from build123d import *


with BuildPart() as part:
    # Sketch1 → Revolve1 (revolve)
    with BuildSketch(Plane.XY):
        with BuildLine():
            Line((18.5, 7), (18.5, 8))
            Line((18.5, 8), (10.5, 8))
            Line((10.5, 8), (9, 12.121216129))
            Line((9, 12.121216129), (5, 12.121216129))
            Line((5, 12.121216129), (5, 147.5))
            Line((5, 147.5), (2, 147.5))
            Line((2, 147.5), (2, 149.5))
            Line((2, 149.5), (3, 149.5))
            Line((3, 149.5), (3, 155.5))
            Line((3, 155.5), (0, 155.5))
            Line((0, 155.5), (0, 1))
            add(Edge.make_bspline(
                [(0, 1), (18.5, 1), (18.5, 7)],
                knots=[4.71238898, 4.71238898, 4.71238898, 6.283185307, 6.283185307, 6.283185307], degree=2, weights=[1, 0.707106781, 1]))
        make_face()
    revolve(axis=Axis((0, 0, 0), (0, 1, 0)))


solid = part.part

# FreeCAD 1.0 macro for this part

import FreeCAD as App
import Part
import Sketcher
Q = App.Units.Quantity

doc = App.newDocument("Part")
body = doc.addObject("PartDesign::Body", "Body")

# Sketch on XY plane
sketch1 = body.newObject("Sketcher::SketchObject", "Sketch")
sketch1.AttachmentSupport = (doc.getObject("XY_Plane"), [""])
sketch1.MapMode = "FlatFace"
sketch1.addGeometry([
    Part.LineSegment(App.Vector(18.5, 7, 0), App.Vector(18.5, 8, 0)),  # 0
    Part.LineSegment(App.Vector(18.5, 8, 0), App.Vector(10.5, 8, 0)),  # 1
    Part.LineSegment(App.Vector(10.5, 8, 0), App.Vector(9, 12.121216, 0)),  # 2
    Part.LineSegment(App.Vector(9, 12.121216, 0), App.Vector(5, 12.121216, 0)),  # 3
    Part.LineSegment(App.Vector(5, 12.121216, 0), App.Vector(5, 147.5, 0)),  # 4
    Part.LineSegment(App.Vector(5, 147.5, 0), App.Vector(2, 147.5, 0)),  # 5
    Part.LineSegment(App.Vector(2, 147.5, 0), App.Vector(2, 149.5, 0)),  # 6
    Part.LineSegment(App.Vector(2, 149.5, 0), App.Vector(3, 149.5, 0)),  # 7
    Part.LineSegment(App.Vector(3, 149.5, 0), App.Vector(3, 155.5, 0)),  # 8
    Part.LineSegment(App.Vector(3, 155.5, 0), App.Vector(0, 155.5, 0)),  # 9
    Part.LineSegment(App.Vector(0, 155.5, 0), App.Vector(0, 1, 0)),  # 10
    Part.BSplineCurve([App.Vector(0, 1, 0), App.Vector(18.5, 1, 0), App.Vector(18.5, 7, 0)], [3, 3], [4.71238898, 6.283185307], False, 2, [1, 0.707106781, 1], False),  # 11
], False)
sketch1.addConstraint([
    Sketcher.Constraint("Block", 11),
    Sketcher.Constraint("Coincident", 0, 2, 1, 1),
    Sketcher.Constraint("Coincident", 1, 2, 2, 1),
    Sketcher.Constraint("Coincident", 2, 2, 3, 1),
    Sketcher.Constraint("Coincident", 3, 2, 4, 1),
    Sketcher.Constraint("Coincident", 4, 2, 5, 1),
    Sketcher.Constraint("Coincident", 5, 2, 6, 1),
    Sketcher.Constraint("Coincident", 6, 2, 7, 1),
    Sketcher.Constraint("Coincident", 7, 2, 8, 1),
    Sketcher.Constraint("Coincident", 8, 2, 9, 1),
    Sketcher.Constraint("Coincident", 9, 2, 10, 1),
    Sketcher.Constraint("Coincident", 10, 2, 11, 1),
    Sketcher.Constraint("Coincident", 11, 2, 0, 1),
    Sketcher.Constraint("Vertical", 0),
    Sketcher.Constraint("Horizontal", 1),
    Sketcher.Constraint("Horizontal", 3),
    Sketcher.Constraint("Vertical", 4),
    Sketcher.Constraint("Horizontal", 5),
    Sketcher.Constraint("Vertical", 6),
    Sketcher.Constraint("Horizontal", 7),
    Sketcher.Constraint("Vertical", 8),
    Sketcher.Constraint("Horizontal", 9),
    Sketcher.Constraint("Vertical", 10),
    Sketcher.Constraint("Equal", 5, 9),
    Sketcher.Constraint("Equal", 7, 0),
    Sketcher.Constraint("DistanceX", 1, 2, 1, 1, Q("8 mm")),
    Sketcher.Constraint("DistanceX", 3, 2, 3, 1, Q("4 mm")),
    Sketcher.Constraint("DistanceX", 5, 2, 5, 1, Q("3 mm")),
    Sketcher.Constraint("DistanceX", 7, 1, 7, 2, Q("1 mm")),
    Sketcher.Constraint("DistanceY", 6, 1, 6, 2, Q("2 mm")),
    Sketcher.Constraint("DistanceY", 8, 1, 8, 2, Q("6 mm")),
    Sketcher.Constraint("Angle", 2, Q("110 deg")),
    Sketcher.Constraint("DistanceY", 10, 2, 10, 1, Q("154.5 mm")),
])
revolution = body.newObject("PartDesign::Revolution", "Revolution")
revolution.Profile = sketch1
revolution.ReferenceAxis = (sketch1, ["V_Axis"])
revolution.Angle = 360

doc.recompute()
